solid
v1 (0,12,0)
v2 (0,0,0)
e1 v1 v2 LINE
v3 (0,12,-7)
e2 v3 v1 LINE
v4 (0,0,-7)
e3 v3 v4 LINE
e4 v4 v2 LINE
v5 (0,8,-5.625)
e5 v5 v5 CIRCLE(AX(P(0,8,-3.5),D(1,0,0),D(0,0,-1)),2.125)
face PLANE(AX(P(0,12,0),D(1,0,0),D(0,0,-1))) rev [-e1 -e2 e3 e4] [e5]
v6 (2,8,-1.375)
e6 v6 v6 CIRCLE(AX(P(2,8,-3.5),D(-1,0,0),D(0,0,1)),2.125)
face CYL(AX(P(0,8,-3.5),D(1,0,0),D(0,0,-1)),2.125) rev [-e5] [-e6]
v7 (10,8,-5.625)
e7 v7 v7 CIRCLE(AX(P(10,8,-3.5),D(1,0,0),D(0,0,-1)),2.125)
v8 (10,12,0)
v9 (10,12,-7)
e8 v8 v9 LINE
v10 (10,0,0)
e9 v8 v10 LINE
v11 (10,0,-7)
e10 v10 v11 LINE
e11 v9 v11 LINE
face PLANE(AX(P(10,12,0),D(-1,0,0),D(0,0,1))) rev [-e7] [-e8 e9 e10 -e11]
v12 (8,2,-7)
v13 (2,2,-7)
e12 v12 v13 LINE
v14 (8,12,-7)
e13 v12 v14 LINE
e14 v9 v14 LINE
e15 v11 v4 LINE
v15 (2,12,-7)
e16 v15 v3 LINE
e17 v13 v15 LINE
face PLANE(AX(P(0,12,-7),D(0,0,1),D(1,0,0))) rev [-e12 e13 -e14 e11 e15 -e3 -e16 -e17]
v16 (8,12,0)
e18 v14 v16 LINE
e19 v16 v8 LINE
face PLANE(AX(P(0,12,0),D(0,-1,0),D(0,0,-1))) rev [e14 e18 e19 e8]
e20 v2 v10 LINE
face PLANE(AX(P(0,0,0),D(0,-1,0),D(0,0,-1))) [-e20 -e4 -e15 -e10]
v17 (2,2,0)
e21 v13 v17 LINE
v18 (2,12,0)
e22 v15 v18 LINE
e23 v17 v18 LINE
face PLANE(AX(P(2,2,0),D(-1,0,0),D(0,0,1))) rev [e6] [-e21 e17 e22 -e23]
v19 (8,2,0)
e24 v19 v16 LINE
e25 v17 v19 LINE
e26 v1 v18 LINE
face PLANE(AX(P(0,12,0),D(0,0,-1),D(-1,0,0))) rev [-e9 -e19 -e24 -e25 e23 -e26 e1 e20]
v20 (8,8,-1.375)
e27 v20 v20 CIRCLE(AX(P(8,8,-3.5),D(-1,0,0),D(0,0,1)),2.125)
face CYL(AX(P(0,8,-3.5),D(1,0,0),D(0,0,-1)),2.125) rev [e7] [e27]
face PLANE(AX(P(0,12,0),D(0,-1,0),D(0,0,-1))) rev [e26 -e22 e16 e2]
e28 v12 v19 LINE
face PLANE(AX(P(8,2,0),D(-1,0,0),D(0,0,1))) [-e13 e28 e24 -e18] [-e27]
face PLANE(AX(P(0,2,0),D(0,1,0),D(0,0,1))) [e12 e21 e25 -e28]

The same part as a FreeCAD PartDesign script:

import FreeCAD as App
import Part
import Sketcher

V = App.Vector

doc = App.newDocument("Part")
body = doc.addObject("PartDesign::Body", "Body")

# Sketch on XZ plane
sketch1 = body.newObject("Sketcher::SketchObject", "Sketch")
sketch1.AttachmentSupport = (doc.getObject("XZ_Plane"), [""])
sketch1.MapMode = "FlatFace"
sketch1.addGeometry(Part.LineSegment(V(0, -7, 0), V(0, 0, 0)), False)
sketch1.addGeometry(Part.LineSegment(V(0, 0, 0), V(10, 0, 0)), False)
sketch1.addGeometry(Part.LineSegment(V(10, 0, 0), V(10, -7, 0)), False)
sketch1.addGeometry(Part.LineSegment(V(10, -7, 0), V(0, -7, 0)), False)
sketch1.addConstraint(Sketcher.Constraint("Coincident", 0, 2, 1, 1))
sketch1.addConstraint(Sketcher.Constraint("Coincident", 1, 2, 2, 1))
sketch1.addConstraint(Sketcher.Constraint("Coincident", 2, 2, 3, 1))
sketch1.addConstraint(Sketcher.Constraint("Coincident", 3, 2, 0, 1))
sketch1.addConstraint(Sketcher.Constraint("Vertical", 0))
sketch1.addConstraint(Sketcher.Constraint("Horizontal", 1))
sketch1.addConstraint(Sketcher.Constraint("Vertical", 2))
sketch1.addConstraint(Sketcher.Constraint("Horizontal", 3))
sketch1.addConstraint(Sketcher.Constraint("Coincident", 0, 2, -1, 1))
sketch1.addConstraint(Sketcher.Constraint("DistanceX", 1, 1, 1, 2, 10.0))
sketch1.addConstraint(Sketcher.Constraint("DistanceY", 0, 1, 0, 2, 7.0))
pad1 = body.newObject("PartDesign::Pad", "Pad")
pad1.Profile = sketch1
pad1.Length = 12
pad1.Reversed = True

# Sketch on XZ plane
sketch2 = body.newObject("Sketcher::SketchObject", "Sketch001")
sketch2.AttachmentSupport = (doc.getObject("XZ_Plane"), [""])
sketch2.MapMode = "FlatFace"
sketch2.AttachmentOffset = App.Placement(V(0, 0, -12), App.Rotation())
sketch2.addGeometry(Part.LineSegment(V(2, -7, 0), V(2, 0, 0)), False)
sketch2.addGeometry(Part.LineSegment(V(2, 0, 0), V(8, 0, 0)), False)
sketch2.addGeometry(Part.LineSegment(V(8, 0, 0), V(8, -7, 0)), False)
sketch2.addGeometry(Part.LineSegment(V(8, -7, 0), V(2, -7, 0)), False)
sketch2.addConstraint(Sketcher.Constraint("Coincident", 0, 2, 1, 1))
sketch2.addConstraint(Sketcher.Constraint("Coincident", 1, 2, 2, 1))
sketch2.addConstraint(Sketcher.Constraint("Coincident", 2, 2, 3, 1))
sketch2.addConstraint(Sketcher.Constraint("Coincident", 3, 2, 0, 1))
sketch2.addConstraint(Sketcher.Constraint("Vertical", 0))
sketch2.addConstraint(Sketcher.Constraint("Horizontal", 1))
sketch2.addConstraint(Sketcher.Constraint("Vertical", 2))
sketch2.addConstraint(Sketcher.Constraint("Horizontal", 3))
sketch2.addConstraint(Sketcher.Constraint("PointOnObject", 0, 2, -1))
sketch2.addConstraint(Sketcher.Constraint("DistanceX", 1, 1, 1, 2, 6.0))
sketch2.addConstraint(Sketcher.Constraint("DistanceY", 0, 1, 0, 2, 7.0))
sketch2.addConstraint(Sketcher.Constraint("DistanceX", -1, 1, 0, 2, 2.0))
pocket1 = body.newObject("PartDesign::Pocket", "Pocket")
pocket1.Profile = sketch2
pocket1.Length = 10
pocket1.Reversed = True

# Sketch on YZ plane
sketch3 = body.newObject("Sketcher::SketchObject", "Sketch002")
sketch3.AttachmentSupport = (doc.getObject("YZ_Plane"), [""])
sketch3.MapMode = "FlatFace"
sketch3.AttachmentOffset = App.Placement(V(0, 0, 10), App.Rotation())
sketch3.addGeometry(Part.Circle(V(8, -3.5, 0), V(0, 0, 1), 2.125), False)
sketch3.addConstraint(Sketcher.Constraint("Diameter", 0, 4.25))
sketch3.addConstraint(Sketcher.Constraint("DistanceX", -1, 1, 0, 3, 8.0))
sketch3.addConstraint(Sketcher.Constraint("DistanceY", 0, 3, -1, 1, 3.5))
pocket2 = body.newObject("PartDesign::Pocket", "Pocket001")
pocket2.Profile = sketch3
pocket2.Type = "ThroughAll"

doc.recompute()
